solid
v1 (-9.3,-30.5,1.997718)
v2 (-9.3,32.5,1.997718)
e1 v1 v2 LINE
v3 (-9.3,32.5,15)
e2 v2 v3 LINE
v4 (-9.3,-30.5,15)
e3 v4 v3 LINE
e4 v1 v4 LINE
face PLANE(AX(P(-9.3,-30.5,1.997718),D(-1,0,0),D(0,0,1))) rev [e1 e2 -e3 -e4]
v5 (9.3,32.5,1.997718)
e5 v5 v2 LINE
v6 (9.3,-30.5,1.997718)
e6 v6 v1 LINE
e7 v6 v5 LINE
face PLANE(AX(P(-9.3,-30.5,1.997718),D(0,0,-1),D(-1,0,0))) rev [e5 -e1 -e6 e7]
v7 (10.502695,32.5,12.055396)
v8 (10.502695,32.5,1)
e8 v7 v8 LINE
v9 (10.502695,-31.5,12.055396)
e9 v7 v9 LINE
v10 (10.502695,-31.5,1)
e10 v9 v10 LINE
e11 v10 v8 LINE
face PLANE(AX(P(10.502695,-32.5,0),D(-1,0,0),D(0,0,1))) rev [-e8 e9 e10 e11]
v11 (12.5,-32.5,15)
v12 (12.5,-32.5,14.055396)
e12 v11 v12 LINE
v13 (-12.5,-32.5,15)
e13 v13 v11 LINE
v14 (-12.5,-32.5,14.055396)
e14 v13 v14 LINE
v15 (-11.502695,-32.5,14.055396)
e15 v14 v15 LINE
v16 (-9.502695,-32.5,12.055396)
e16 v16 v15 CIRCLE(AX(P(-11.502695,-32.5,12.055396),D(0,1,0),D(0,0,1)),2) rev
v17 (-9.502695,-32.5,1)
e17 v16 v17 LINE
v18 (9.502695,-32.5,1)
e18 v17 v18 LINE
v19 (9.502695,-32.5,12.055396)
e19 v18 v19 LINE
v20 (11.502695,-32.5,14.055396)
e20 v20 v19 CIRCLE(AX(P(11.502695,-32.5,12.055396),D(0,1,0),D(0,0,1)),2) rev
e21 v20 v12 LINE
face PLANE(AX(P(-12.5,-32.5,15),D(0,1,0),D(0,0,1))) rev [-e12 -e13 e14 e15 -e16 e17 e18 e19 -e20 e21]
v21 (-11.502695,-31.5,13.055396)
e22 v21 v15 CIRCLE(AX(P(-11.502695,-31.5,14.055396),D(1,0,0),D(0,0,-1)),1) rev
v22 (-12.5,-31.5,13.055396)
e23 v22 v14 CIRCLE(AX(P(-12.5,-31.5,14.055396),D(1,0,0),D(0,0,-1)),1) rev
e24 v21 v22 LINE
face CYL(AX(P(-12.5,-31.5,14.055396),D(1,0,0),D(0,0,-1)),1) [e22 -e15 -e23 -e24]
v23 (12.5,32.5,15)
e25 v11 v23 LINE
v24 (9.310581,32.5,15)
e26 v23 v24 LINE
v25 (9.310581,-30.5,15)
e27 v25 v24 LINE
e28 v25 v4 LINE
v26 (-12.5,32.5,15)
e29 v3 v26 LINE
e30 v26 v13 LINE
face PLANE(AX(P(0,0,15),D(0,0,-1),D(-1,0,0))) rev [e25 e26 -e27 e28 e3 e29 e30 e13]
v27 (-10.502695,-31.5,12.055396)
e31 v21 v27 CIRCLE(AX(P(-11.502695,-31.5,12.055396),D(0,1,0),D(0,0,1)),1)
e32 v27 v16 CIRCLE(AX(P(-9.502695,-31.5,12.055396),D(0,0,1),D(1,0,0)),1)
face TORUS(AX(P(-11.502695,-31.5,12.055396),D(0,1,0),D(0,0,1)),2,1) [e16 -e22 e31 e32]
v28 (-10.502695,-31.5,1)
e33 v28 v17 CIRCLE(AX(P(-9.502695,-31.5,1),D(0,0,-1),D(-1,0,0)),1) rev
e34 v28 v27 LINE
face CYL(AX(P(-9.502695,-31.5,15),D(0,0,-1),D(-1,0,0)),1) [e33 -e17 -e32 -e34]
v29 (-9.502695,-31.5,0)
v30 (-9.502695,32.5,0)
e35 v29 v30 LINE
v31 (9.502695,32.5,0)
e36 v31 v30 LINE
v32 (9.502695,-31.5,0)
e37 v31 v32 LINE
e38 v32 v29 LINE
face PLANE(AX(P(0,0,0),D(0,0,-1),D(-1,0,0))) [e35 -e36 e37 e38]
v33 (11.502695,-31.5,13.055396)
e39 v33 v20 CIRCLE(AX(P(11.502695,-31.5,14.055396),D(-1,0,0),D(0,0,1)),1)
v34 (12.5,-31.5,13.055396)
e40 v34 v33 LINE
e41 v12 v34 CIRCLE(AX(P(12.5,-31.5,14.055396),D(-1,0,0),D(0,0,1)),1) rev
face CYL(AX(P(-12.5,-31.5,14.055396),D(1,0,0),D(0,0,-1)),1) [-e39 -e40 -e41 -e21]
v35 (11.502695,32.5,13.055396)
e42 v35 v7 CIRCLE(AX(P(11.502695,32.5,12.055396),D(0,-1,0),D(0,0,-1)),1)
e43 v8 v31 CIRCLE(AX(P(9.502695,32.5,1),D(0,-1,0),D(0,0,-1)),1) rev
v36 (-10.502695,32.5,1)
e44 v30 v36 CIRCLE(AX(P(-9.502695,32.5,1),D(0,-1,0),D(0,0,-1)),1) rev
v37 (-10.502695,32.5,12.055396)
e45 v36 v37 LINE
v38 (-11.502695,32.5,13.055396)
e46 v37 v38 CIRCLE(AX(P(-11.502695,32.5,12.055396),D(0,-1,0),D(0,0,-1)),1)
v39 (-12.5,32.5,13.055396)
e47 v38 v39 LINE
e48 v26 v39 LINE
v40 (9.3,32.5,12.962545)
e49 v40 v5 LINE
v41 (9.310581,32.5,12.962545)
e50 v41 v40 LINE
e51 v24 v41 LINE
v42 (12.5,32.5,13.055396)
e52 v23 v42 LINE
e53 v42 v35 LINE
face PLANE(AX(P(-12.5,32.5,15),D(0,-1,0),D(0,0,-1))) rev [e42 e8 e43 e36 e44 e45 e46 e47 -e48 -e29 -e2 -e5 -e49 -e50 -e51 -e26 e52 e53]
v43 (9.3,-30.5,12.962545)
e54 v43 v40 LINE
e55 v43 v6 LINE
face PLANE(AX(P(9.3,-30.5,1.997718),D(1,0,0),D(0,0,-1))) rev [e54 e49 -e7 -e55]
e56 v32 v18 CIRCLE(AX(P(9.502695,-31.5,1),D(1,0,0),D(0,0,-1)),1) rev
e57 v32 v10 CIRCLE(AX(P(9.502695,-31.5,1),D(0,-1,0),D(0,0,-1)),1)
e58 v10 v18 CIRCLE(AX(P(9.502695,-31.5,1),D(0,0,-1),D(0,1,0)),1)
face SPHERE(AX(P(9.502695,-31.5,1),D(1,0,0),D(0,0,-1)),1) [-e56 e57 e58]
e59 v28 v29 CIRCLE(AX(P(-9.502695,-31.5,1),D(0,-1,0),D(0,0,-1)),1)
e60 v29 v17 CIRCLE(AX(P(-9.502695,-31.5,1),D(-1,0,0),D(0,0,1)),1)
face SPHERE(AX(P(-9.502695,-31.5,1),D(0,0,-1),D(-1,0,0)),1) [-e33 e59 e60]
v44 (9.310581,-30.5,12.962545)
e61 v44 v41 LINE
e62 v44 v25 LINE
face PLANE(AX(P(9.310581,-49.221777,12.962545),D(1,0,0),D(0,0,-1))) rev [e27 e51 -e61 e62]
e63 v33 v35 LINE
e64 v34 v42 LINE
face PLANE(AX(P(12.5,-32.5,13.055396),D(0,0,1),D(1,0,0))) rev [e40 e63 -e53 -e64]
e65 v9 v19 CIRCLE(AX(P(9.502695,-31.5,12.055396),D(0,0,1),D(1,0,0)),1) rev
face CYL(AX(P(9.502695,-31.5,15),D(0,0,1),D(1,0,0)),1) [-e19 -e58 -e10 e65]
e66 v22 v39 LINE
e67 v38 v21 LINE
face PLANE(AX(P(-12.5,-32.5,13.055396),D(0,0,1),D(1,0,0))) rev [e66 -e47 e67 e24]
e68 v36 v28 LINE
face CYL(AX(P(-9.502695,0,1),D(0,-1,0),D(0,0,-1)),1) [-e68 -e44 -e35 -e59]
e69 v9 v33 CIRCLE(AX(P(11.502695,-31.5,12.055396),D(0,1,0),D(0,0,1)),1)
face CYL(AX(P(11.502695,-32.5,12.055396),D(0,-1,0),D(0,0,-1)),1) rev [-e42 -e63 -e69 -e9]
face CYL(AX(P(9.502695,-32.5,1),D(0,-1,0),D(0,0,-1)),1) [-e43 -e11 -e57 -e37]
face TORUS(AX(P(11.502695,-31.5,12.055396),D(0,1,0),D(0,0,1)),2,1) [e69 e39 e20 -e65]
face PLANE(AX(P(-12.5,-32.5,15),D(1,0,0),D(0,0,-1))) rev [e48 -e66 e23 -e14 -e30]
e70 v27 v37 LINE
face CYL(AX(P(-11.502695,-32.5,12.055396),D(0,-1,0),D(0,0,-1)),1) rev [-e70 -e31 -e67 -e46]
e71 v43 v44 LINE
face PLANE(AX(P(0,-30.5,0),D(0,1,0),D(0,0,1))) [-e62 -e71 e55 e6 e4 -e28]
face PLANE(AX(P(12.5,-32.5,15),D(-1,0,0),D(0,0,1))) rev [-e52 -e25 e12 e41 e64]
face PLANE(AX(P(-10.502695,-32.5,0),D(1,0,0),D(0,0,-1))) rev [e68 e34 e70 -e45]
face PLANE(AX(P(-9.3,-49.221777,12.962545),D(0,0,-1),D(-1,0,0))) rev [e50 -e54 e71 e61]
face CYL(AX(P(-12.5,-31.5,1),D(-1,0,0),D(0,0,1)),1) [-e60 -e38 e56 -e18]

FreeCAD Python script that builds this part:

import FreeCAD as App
import Part
import Sketcher
Q = App.Units.Quantity


def edges_at(feature, points):
    """Names of the edges that pass closest to the given points."""
    edges = feature.Shape.Edges
    near = lambda p: min(range(len(edges)), key=lambda i: edges[i].distToShape(Part.Vertex(*p))[0])
    return sorted({f"Edge{near(p) + 1}" for p in points})

doc = App.newDocument("Part")
body = doc.addObject("PartDesign::Body", "Body")

# Sketch on XY plane
sketch1 = body.newObject("Sketcher::SketchObject", "Sketch")
sketch1.AttachmentSupport = (doc.getObject("XY_Plane"), [""])
sketch1.MapMode = "FlatFace"
sketch1.addGeometry([
    Part.LineSegment(App.Vector(-12, 32, 0), App.Vector(-12, -32, 0)),
    Part.LineSegment(App.Vector(-12, -32, 0), App.Vector(12, -32, 0)),
    Part.LineSegment(App.Vector(12, -32, 0), App.Vector(12, 32, 0)),
    Part.LineSegment(App.Vector(12, 32, 0), App.Vector(-12, 32, 0)),
], False)
sketch1.addConstraint([
    Sketcher.Constraint("Coincident", 0, 2, 1, 1),
    Sketcher.Constraint("Coincident", 1, 2, 2, 1),
    Sketcher.Constraint("Coincident", 2, 2, 3, 1),
    Sketcher.Constraint("Coincident", 3, 2, 0, 1),
    Sketcher.Constraint("Vertical", 0),
    Sketcher.Constraint("Horizontal", 1),
    Sketcher.Constraint("Vertical", 2),
    Sketcher.Constraint("Horizontal", 3),
    Sketcher.Constraint("Symmetric", 0, 2, 2, 2, -1, 1),
    Sketcher.Constraint("DistanceX", 1, 1, 1, 2, Q("25 mm")),
    Sketcher.Constraint("DistanceY", 0, 2, 0, 1, Q("65 mm")),
])
pad1 = body.newObject("PartDesign::Pad", "Pad")
pad1.Profile = sketch1
pad1.Length = 15

# Sketch on XZ plane
sketch2 = body.newObject("Sketcher::SketchObject", "Sketch001")
sketch2.AttachmentSupport = (doc.getObject("XZ_Plane"), [""])
sketch2.MapMode = "FlatFace"
sketch2.AttachmentOffset = App.Placement(App.Vector(0, 0, -32.5), App.Rotation())
sketch2.addGeometry([
    Part.LineSegment(App.Vector(10.5, 0, 0), App.Vector(10.5, 13.1, 0)),  # 0
    Part.LineSegment(App.Vector(10.5, 13.1, 0), App.Vector(12.5, 13.1, 0)),  # 1
    Part.LineSegment(App.Vector(12.5, 13.1, 0), App.Vector(12.5, 0, 0)),  # 2
    Part.LineSegment(App.Vector(12.5, 0, 0), App.Vector(10.5, 0, 0)),  # 3
    Part.LineSegment(App.Vector(-12.5, 0, 0), App.Vector(-12.5, 13.1, 0)),  # 4
    Part.LineSegment(App.Vector(-12.5, 13.1, 0), App.Vector(-10.5, 13.1, 0)),  # 5
    Part.LineSegment(App.Vector(-10.5, 13.1, 0), App.Vector(-10.5, 0, 0)),  # 6
    Part.LineSegment(App.Vector(-10.5, 0, 0), App.Vector(-12.5, 0, 0)),  # 7
], False)
sketch2.addConstraint([
    Sketcher.Constraint("Coincident", 0, 2, 1, 1),
    Sketcher.Constraint("Coincident", 1, 2, 2, 1),
    Sketcher.Constraint("Coincident", 2, 2, 3, 1),
    Sketcher.Constraint("Coincident", 3, 2, 0, 1),
    Sketcher.Constraint("Coincident", 4, 2, 5, 1),
    Sketcher.Constraint("Coincident", 5, 2, 6, 1),
    Sketcher.Constraint("Coincident", 6, 2, 7, 1),
    Sketcher.Constraint("Coincident", 7, 2, 4, 1),
    Sketcher.Constraint("Vertical", 0),
    Sketcher.Constraint("Horizontal", 1),
    Sketcher.Constraint("Vertical", 2),
    Sketcher.Constraint("Horizontal", 3),
    Sketcher.Constraint("Vertical", 4),
    Sketcher.Constraint("Horizontal", 5),
    Sketcher.Constraint("Vertical", 6),
    Sketcher.Constraint("Horizontal", 7),
    Sketcher.Constraint("Symmetric", 3, 2, 6, 2, -1, 1),
    Sketcher.Constraint("Symmetric", 1, 2, 4, 2, -2),
    Sketcher.Constraint("PointOnObject", 2, 2, -1),
    Sketcher.Constraint("DistanceX", 4, 2, 1, 2, Q("25 mm")),
    Sketcher.Constraint("DistanceX", 1, 1, 1, 2, Q("1.997305 mm")),
    Sketcher.Constraint("DistanceY", 0, 1, 0, 2, Q("13.055396 mm")),
])
pocket1 = body.newObject("PartDesign::Pocket", "Pocket")
pocket1.Profile = sketch2
pocket1.Type = "ThroughAll"
pocket1.Midplane = True

# Sketch on XZ plane
sketch3 = body.newObject("Sketcher::SketchObject", "Sketch002")
sketch3.AttachmentSupport = (doc.getObject("XZ_Plane"), [""])
sketch3.MapMode = "FlatFace"
sketch3.AttachmentOffset = App.Placement(App.Vector(0, 0, -32.5), App.Rotation())
sketch3.addGeometry([
    Part.LineSegment(App.Vector(-9, 2, 0), App.Vector(-9, 13, 0)),
    Part.LineSegment(App.Vector(-9, 13, 0), App.Vector(9, 13, 0)),
    Part.LineSegment(App.Vector(9, 13, 0), App.Vector(9, 2, 0)),
    Part.LineSegment(App.Vector(9, 2, 0), App.Vector(-9, 2, 0)),
], False)
sketch3.addConstraint([
    Sketcher.Constraint("Coincident", 0, 2, 1, 1),
    Sketcher.Constraint("Coincident", 1, 2, 2, 1),
    Sketcher.Constraint("Coincident", 2, 2, 3, 1),
    Sketcher.Constraint("Coincident", 3, 2, 0, 1),
    Sketcher.Constraint("Vertical", 0),
    Sketcher.Constraint("Horizontal", 1),
    Sketcher.Constraint("Vertical", 2),
    Sketcher.Constraint("Horizontal", 3),
    Sketcher.Constraint("DistanceX", 1, 1, 1, 2, Q("18.6 mm")),
    Sketcher.Constraint("DistanceX", 0, 2, -1, 1, Q("9.3 mm")),
    Sketcher.Constraint("DistanceY", 0, 1, 0, 2, Q("10.964827 mm")),
    Sketcher.Constraint("DistanceY", -1, 1, 2, 2, Q("1.997718 mm")),
])
pocket2 = body.newObject("PartDesign::Pocket", "Pocket001")
pocket2.Profile = sketch3
pocket2.Length = 63
pocket2.Reversed = True

# Sketch on XZ plane
sketch4 = body.newObject("Sketcher::SketchObject", "Sketch003")
sketch4.AttachmentSupport = (doc.getObject("XZ_Plane"), [""])
sketch4.MapMode = "FlatFace"
sketch4.AttachmentOffset = App.Placement(App.Vector(0, 0, -32.5), App.Rotation())
sketch4.addGeometry([
    Part.LineSegment(App.Vector(-9.3, 13, 0), App.Vector(-9.3, 15, 0)),
    Part.LineSegment(App.Vector(-9.3, 15, 0), App.Vector(9.3, 15, 0)),
    Part.LineSegment(App.Vector(9.3, 15, 0), App.Vector(9.3, 13, 0)),
    Part.LineSegment(App.Vector(9.3, 13, 0), App.Vector(-9.3, 13, 0)),
], False)
sketch4.addConstraint([
    Sketcher.Constraint("Coincident", 0, 2, 1, 1),
    Sketcher.Constraint("Coincident", 1, 2, 2, 1),
    Sketcher.Constraint("Coincident", 2, 2, 3, 1),
    Sketcher.Constraint("Coincident", 3, 2, 0, 1),
    Sketcher.Constraint("Vertical", 0),
    Sketcher.Constraint("Horizontal", 1),
    Sketcher.Constraint("Vertical", 2),
    Sketcher.Constraint("Horizontal", 3),
    Sketcher.Constraint("DistanceY", -1, 1, 0, 2, Q("15 mm")),
    Sketcher.Constraint("DistanceX", 0, 2, -1, 1, Q("9.3 mm")),
    Sketcher.Constraint("DistanceX", 1, 1, 1, 2, Q("18.610581 mm")),
    Sketcher.Constraint("DistanceY", 0, 1, 0, 2, Q("2.037455 mm")),
])
pocket3 = body.newObject("PartDesign::Pocket", "Pocket002")
pocket3.Profile = sketch4
pocket3.Length = 63
pocket3.Reversed = True
doc.recompute()

fillet = body.newObject("PartDesign::Fillet", "Fillet")
fillet.Base = (pocket3, edges_at(pocket3, [
    (0, -32.5, 0),
    (-10.503, 0, 13.055),
    (-11.501, -32.5, 13.055),
    (-10.503, 0, 0),
    (-10.503, -32.5, 6.528),
    (10.503, 0, 0),
    (11.501, -32.5, 13.055),
    (10.503, 0, 13.055),
    (10.503, -32.5, 6.528),
]))
fillet.Radius = 1

doc.recompute()
